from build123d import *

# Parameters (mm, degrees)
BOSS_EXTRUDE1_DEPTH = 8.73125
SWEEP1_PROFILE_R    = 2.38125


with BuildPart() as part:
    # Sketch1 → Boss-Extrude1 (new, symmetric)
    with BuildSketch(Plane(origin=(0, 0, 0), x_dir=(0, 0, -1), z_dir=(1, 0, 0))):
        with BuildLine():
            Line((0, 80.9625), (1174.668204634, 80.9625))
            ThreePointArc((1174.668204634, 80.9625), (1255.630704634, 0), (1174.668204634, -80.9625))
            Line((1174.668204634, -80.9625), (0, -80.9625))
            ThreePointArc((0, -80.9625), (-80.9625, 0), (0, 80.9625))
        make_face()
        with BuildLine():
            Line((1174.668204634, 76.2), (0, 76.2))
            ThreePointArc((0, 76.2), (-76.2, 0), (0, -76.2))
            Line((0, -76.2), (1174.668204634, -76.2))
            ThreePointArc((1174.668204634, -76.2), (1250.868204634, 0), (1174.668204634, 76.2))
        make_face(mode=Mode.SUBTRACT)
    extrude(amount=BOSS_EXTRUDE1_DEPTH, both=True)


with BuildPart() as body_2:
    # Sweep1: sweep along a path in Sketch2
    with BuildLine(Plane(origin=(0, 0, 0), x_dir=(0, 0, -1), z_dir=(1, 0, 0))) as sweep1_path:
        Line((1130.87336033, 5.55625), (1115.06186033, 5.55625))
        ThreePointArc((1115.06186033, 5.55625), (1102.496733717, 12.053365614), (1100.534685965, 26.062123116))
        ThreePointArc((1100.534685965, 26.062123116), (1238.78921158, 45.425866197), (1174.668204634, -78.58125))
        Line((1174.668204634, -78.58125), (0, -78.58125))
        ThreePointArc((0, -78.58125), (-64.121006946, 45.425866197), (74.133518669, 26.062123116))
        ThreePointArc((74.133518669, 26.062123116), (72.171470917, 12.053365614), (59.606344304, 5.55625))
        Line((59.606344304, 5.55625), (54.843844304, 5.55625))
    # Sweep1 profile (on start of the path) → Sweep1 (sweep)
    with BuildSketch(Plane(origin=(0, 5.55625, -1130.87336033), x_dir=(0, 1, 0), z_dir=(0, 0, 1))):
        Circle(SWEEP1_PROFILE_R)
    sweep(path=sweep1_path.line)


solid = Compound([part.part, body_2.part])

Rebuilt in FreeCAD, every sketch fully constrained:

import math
import FreeCAD as App
import Part
import Sketcher

V = App.Vector
Q = App.Units.Quantity

doc = App.newDocument("Part")
params = doc.addObject("Spreadsheet::Sheet", "Params")
for row, (alias, value) in enumerate([
    ("sketch1_radius", "3 in"),
    ("sketch1_radius2", "3.1875 in"),
    ("pad1_length", "0.6875 in"),
    ("sketch2_diameter", "0.1875 in"),
    ("sketch3_radius", "3.09375 in"),
    ("sketch3_height", "0.1875 in"),
], start=1):
    params.set(f"A{row}", alias)
    params.set(f"B{row}", "=" + value)
    params.setAlias(f"B{row}", alias)

body = doc.addObject("PartDesign::Body", "Body")

# Sketch on YZ plane
sketch1 = body.newObject("Sketcher::SketchObject", "Sketch")
sketch1.AttachmentSupport = (doc.getObject("YZ_Plane"), [""])
sketch1.MapMode = "FlatFace"
sketch1.addGeometry(Part.LineSegment(V(81, -1175, 0), V(81, 0, 0)), False)
sketch1.addGeometry(Part.ArcOfCircle(Part.Circle(V(0, 0, 0), V(0, 0, 1), 81), math.radians(0), math.radians(180)), False)
sketch1.addGeometry(Part.LineSegment(V(-81, 0, 0), V(-81, -1175, 0)), False)
sketch1.addGeometry(Part.ArcOfCircle(Part.Circle(V(0, -1175, 0), V(0, 0, 1), 81), math.radians(180), math.radians(360)), False)
sketch1.addGeometry(Part.ArcOfCircle(Part.Circle(V(0, -1175, 0), V(0, 0, 1), 76), math.radians(180), math.radians(360)), False)
sketch1.addGeometry(Part.LineSegment(V(-76, -1175, 0), V(-76, 0, 0)), False)
sketch1.addGeometry(Part.ArcOfCircle(Part.Circle(V(0, 0, 0), V(0, 0, 1), 76), math.radians(0), math.radians(180)), False)
sketch1.addGeometry(Part.LineSegment(V(76, 0, 0), V(76, -1175, 0)), False)
sketch1.addConstraint(Sketcher.Constraint("Tangent", 0, 2, 1, 1))
sketch1.addConstraint(Sketcher.Constraint("Tangent", 1, 2, 2, 1))
sketch1.addConstraint(Sketcher.Constraint("Tangent", 2, 2, 3, 1))
sketch1.addConstraint(Sketcher.Constraint("Tangent", 3, 2, 0, 1))
sketch1.addConstraint(Sketcher.Constraint("Tangent", 4, 1, 5, 1))
sketch1.addConstraint(Sketcher.Constraint("Tangent", 5, 2, 6, 2))
sketch1.addConstraint(Sketcher.Constraint("Tangent", 6, 1, 7, 1))
sketch1.addConstraint(Sketcher.Constraint("Tangent", 7, 2, 4, 2))
sketch1.addConstraint(Sketcher.Constraint("Vertical", 0))
sketch1.addConstraint(Sketcher.Constraint("Vertical", 2))
sketch1.addConstraint(Sketcher.Constraint("Vertical", 5))
sketch1.addConstraint(Sketcher.Constraint("Vertical", 7))
sketch1.addConstraint(Sketcher.Constraint("Coincident", 1, 3, -1, 1))
sketch1.addConstraint(Sketcher.Constraint("Coincident", 6, 3, -1, 1))
sketch1.addConstraint(Sketcher.Constraint("Horizontal", 4, 3, 2, 2))
sketch1.addConstraint(Sketcher.Constraint("Radius", 4, Q("3 in")))
sketch1.addConstraint(Sketcher.Constraint("Radius", 1, Q("3.1875 in")))
sketch1.addConstraint(Sketcher.Constraint("DistanceY", 0, 1, 0, 2, Q("1174.668205 mm")))
sketch1.setExpression("Constraints[15]", "Params.sketch1_radius")
sketch1.setExpression("Constraints[16]", "Params.sketch1_radius2")
pad1 = body.newObject("PartDesign::Pad", "Pad")
pad1.Profile = sketch1
pad1.setExpression("Length", "Params.pad1_length")
pad1.Midplane = True
body2 = doc.addObject("PartDesign::Body", "Body001")

# Sketch on XY plane
sketch2 = body2.newObject("Sketcher::SketchObject", "Sketch001")
sketch2.AttachmentSupport = (doc.getObject("XY_Plane001"), [""])
sketch2.MapMode = "FlatFace"
sketch2.AttachmentOffset = App.Placement(V(0, 0, -1130.87336), App.Rotation())
sketch2.addGeometry(Part.Circle(V(0, 5.6, 0), V(0, 0, 1), 2.4), False)
sketch2.addConstraint(Sketcher.Constraint("PointOnObject", 0, 3, -2))
sketch2.addConstraint(Sketcher.Constraint("Diameter", 0, Q("0.1875 in")))
sketch2.addConstraint(Sketcher.Constraint("DistanceY", -1, 1, 0, 3, Q("0.21875 in")))
sketch2.setExpression("Constraints[1]", "Params.sketch2_diameter")

# Sketch on YZ plane
sketch3 = body2.newObject("Sketcher::SketchObject", "Sketch002")
sketch3.AttachmentSupport = (doc.getObject("YZ_Plane001"), [""])
sketch3.MapMode = "FlatFace"
sketch3.addGeometry(Part.LineSegment(V(5.6, -1130.9, 0), V(5.6, -1115.1, 0)), False)
sketch3.addGeometry(Part.ArcOfCircle(Part.Circle(V(21, -1115.1, 0), V(0, 0, 1), 15.4), math.radians(71), math.radians(180)), False)
sketch3.addGeometry(Part.ArcOfCircle(Part.Circle(V(0, -1174.7, 0), V(0, 0, 1), 78.6), math.radians(180), math.radians(431)), False)
sketch3.addGeometry(Part.LineSegment(V(-78.6, -1174.7, 0), V(-78.6, 0, 0)), False)
sketch3.addGeometry(Part.ArcOfCircle(Part.Circle(V(0, 0, 0), V(0, 0, 1), 78.6), math.radians(-71), math.radians(180)), False)
sketch3.addGeometry(Part.ArcOfCircle(Part.Circle(V(21, -59.6, 0), V(0, 0, 1), 15.4), math.radians(-180), math.radians(-71)), False)
sketch3.addGeometry(Part.LineSegment(V(5.6, -59.6, 0), V(5.6, -54.8, 0)), False)
sketch3.addConstraint(Sketcher.Constraint("Tangent", 0, 2, 1, 2))
sketch3.addConstraint(Sketcher.Constraint("Tangent", 1, 1, 2, 2))
sketch3.addConstraint(Sketcher.Constraint("Tangent", 2, 1, 3, 1))
sketch3.addConstraint(Sketcher.Constraint("Tangent", 3, 2, 4, 2))
sketch3.addConstraint(Sketcher.Constraint("Tangent", 4, 1, 5, 2))
sketch3.addConstraint(Sketcher.Constraint("Tangent", 5, 1, 6, 1))
sketch3.addConstraint(Sketcher.Constraint("Vertical", 0))
sketch3.addConstraint(Sketcher.Constraint("Vertical", 3))
sketch3.addConstraint(Sketcher.Constraint("Vertical", 6))
sketch3.addConstraint(Sketcher.Constraint("Coincident", 4, 3, -1, 1))
sketch3.addConstraint(Sketcher.Constraint("Equal", 2, 4))
sketch3.addConstraint(Sketcher.Constraint("Equal", 1, 5))
sketch3.addConstraint(Sketcher.Constraint("Vertical", 1, 3, 5, 3))
sketch3.addConstraint(Sketcher.Constraint("Radius", 2, Q("3.09375 in")))
sketch3.addConstraint(Sketcher.Constraint("DistanceY", 6, 1, 6, 2, Q("0.1875 in")))
sketch3.addConstraint(Sketcher.Constraint("DistanceY", 0, 1, 0, 2, Q("0.6225 in")))
sketch3.addConstraint(Sketcher.Constraint("DistanceX", -1, 1, 1, 3, Q("0.825 in")))
sketch3.addConstraint(Sketcher.Constraint("DistanceX", -1, 1, 0, 1, Q("0.21875 in")))
sketch3.addConstraint(Sketcher.Constraint("DistanceY", 3, 1, 3, 2, Q("1174.668205 mm")))
sketch3.setExpression("Constraints[13]", "Params.sketch3_radius")
sketch3.setExpression("Constraints[14]", "Params.sketch3_height")
doc.recompute()

additivepipe = body2.newObject("PartDesign::AdditivePipe", "AdditivePipe")
additivepipe.Profile = sketch2
additivepipe.Spine = (sketch3, ["Edge1", "Edge2", "Edge3", "Edge4", "Edge5", "Edge6", "Edge7"])

doc.recompute()
